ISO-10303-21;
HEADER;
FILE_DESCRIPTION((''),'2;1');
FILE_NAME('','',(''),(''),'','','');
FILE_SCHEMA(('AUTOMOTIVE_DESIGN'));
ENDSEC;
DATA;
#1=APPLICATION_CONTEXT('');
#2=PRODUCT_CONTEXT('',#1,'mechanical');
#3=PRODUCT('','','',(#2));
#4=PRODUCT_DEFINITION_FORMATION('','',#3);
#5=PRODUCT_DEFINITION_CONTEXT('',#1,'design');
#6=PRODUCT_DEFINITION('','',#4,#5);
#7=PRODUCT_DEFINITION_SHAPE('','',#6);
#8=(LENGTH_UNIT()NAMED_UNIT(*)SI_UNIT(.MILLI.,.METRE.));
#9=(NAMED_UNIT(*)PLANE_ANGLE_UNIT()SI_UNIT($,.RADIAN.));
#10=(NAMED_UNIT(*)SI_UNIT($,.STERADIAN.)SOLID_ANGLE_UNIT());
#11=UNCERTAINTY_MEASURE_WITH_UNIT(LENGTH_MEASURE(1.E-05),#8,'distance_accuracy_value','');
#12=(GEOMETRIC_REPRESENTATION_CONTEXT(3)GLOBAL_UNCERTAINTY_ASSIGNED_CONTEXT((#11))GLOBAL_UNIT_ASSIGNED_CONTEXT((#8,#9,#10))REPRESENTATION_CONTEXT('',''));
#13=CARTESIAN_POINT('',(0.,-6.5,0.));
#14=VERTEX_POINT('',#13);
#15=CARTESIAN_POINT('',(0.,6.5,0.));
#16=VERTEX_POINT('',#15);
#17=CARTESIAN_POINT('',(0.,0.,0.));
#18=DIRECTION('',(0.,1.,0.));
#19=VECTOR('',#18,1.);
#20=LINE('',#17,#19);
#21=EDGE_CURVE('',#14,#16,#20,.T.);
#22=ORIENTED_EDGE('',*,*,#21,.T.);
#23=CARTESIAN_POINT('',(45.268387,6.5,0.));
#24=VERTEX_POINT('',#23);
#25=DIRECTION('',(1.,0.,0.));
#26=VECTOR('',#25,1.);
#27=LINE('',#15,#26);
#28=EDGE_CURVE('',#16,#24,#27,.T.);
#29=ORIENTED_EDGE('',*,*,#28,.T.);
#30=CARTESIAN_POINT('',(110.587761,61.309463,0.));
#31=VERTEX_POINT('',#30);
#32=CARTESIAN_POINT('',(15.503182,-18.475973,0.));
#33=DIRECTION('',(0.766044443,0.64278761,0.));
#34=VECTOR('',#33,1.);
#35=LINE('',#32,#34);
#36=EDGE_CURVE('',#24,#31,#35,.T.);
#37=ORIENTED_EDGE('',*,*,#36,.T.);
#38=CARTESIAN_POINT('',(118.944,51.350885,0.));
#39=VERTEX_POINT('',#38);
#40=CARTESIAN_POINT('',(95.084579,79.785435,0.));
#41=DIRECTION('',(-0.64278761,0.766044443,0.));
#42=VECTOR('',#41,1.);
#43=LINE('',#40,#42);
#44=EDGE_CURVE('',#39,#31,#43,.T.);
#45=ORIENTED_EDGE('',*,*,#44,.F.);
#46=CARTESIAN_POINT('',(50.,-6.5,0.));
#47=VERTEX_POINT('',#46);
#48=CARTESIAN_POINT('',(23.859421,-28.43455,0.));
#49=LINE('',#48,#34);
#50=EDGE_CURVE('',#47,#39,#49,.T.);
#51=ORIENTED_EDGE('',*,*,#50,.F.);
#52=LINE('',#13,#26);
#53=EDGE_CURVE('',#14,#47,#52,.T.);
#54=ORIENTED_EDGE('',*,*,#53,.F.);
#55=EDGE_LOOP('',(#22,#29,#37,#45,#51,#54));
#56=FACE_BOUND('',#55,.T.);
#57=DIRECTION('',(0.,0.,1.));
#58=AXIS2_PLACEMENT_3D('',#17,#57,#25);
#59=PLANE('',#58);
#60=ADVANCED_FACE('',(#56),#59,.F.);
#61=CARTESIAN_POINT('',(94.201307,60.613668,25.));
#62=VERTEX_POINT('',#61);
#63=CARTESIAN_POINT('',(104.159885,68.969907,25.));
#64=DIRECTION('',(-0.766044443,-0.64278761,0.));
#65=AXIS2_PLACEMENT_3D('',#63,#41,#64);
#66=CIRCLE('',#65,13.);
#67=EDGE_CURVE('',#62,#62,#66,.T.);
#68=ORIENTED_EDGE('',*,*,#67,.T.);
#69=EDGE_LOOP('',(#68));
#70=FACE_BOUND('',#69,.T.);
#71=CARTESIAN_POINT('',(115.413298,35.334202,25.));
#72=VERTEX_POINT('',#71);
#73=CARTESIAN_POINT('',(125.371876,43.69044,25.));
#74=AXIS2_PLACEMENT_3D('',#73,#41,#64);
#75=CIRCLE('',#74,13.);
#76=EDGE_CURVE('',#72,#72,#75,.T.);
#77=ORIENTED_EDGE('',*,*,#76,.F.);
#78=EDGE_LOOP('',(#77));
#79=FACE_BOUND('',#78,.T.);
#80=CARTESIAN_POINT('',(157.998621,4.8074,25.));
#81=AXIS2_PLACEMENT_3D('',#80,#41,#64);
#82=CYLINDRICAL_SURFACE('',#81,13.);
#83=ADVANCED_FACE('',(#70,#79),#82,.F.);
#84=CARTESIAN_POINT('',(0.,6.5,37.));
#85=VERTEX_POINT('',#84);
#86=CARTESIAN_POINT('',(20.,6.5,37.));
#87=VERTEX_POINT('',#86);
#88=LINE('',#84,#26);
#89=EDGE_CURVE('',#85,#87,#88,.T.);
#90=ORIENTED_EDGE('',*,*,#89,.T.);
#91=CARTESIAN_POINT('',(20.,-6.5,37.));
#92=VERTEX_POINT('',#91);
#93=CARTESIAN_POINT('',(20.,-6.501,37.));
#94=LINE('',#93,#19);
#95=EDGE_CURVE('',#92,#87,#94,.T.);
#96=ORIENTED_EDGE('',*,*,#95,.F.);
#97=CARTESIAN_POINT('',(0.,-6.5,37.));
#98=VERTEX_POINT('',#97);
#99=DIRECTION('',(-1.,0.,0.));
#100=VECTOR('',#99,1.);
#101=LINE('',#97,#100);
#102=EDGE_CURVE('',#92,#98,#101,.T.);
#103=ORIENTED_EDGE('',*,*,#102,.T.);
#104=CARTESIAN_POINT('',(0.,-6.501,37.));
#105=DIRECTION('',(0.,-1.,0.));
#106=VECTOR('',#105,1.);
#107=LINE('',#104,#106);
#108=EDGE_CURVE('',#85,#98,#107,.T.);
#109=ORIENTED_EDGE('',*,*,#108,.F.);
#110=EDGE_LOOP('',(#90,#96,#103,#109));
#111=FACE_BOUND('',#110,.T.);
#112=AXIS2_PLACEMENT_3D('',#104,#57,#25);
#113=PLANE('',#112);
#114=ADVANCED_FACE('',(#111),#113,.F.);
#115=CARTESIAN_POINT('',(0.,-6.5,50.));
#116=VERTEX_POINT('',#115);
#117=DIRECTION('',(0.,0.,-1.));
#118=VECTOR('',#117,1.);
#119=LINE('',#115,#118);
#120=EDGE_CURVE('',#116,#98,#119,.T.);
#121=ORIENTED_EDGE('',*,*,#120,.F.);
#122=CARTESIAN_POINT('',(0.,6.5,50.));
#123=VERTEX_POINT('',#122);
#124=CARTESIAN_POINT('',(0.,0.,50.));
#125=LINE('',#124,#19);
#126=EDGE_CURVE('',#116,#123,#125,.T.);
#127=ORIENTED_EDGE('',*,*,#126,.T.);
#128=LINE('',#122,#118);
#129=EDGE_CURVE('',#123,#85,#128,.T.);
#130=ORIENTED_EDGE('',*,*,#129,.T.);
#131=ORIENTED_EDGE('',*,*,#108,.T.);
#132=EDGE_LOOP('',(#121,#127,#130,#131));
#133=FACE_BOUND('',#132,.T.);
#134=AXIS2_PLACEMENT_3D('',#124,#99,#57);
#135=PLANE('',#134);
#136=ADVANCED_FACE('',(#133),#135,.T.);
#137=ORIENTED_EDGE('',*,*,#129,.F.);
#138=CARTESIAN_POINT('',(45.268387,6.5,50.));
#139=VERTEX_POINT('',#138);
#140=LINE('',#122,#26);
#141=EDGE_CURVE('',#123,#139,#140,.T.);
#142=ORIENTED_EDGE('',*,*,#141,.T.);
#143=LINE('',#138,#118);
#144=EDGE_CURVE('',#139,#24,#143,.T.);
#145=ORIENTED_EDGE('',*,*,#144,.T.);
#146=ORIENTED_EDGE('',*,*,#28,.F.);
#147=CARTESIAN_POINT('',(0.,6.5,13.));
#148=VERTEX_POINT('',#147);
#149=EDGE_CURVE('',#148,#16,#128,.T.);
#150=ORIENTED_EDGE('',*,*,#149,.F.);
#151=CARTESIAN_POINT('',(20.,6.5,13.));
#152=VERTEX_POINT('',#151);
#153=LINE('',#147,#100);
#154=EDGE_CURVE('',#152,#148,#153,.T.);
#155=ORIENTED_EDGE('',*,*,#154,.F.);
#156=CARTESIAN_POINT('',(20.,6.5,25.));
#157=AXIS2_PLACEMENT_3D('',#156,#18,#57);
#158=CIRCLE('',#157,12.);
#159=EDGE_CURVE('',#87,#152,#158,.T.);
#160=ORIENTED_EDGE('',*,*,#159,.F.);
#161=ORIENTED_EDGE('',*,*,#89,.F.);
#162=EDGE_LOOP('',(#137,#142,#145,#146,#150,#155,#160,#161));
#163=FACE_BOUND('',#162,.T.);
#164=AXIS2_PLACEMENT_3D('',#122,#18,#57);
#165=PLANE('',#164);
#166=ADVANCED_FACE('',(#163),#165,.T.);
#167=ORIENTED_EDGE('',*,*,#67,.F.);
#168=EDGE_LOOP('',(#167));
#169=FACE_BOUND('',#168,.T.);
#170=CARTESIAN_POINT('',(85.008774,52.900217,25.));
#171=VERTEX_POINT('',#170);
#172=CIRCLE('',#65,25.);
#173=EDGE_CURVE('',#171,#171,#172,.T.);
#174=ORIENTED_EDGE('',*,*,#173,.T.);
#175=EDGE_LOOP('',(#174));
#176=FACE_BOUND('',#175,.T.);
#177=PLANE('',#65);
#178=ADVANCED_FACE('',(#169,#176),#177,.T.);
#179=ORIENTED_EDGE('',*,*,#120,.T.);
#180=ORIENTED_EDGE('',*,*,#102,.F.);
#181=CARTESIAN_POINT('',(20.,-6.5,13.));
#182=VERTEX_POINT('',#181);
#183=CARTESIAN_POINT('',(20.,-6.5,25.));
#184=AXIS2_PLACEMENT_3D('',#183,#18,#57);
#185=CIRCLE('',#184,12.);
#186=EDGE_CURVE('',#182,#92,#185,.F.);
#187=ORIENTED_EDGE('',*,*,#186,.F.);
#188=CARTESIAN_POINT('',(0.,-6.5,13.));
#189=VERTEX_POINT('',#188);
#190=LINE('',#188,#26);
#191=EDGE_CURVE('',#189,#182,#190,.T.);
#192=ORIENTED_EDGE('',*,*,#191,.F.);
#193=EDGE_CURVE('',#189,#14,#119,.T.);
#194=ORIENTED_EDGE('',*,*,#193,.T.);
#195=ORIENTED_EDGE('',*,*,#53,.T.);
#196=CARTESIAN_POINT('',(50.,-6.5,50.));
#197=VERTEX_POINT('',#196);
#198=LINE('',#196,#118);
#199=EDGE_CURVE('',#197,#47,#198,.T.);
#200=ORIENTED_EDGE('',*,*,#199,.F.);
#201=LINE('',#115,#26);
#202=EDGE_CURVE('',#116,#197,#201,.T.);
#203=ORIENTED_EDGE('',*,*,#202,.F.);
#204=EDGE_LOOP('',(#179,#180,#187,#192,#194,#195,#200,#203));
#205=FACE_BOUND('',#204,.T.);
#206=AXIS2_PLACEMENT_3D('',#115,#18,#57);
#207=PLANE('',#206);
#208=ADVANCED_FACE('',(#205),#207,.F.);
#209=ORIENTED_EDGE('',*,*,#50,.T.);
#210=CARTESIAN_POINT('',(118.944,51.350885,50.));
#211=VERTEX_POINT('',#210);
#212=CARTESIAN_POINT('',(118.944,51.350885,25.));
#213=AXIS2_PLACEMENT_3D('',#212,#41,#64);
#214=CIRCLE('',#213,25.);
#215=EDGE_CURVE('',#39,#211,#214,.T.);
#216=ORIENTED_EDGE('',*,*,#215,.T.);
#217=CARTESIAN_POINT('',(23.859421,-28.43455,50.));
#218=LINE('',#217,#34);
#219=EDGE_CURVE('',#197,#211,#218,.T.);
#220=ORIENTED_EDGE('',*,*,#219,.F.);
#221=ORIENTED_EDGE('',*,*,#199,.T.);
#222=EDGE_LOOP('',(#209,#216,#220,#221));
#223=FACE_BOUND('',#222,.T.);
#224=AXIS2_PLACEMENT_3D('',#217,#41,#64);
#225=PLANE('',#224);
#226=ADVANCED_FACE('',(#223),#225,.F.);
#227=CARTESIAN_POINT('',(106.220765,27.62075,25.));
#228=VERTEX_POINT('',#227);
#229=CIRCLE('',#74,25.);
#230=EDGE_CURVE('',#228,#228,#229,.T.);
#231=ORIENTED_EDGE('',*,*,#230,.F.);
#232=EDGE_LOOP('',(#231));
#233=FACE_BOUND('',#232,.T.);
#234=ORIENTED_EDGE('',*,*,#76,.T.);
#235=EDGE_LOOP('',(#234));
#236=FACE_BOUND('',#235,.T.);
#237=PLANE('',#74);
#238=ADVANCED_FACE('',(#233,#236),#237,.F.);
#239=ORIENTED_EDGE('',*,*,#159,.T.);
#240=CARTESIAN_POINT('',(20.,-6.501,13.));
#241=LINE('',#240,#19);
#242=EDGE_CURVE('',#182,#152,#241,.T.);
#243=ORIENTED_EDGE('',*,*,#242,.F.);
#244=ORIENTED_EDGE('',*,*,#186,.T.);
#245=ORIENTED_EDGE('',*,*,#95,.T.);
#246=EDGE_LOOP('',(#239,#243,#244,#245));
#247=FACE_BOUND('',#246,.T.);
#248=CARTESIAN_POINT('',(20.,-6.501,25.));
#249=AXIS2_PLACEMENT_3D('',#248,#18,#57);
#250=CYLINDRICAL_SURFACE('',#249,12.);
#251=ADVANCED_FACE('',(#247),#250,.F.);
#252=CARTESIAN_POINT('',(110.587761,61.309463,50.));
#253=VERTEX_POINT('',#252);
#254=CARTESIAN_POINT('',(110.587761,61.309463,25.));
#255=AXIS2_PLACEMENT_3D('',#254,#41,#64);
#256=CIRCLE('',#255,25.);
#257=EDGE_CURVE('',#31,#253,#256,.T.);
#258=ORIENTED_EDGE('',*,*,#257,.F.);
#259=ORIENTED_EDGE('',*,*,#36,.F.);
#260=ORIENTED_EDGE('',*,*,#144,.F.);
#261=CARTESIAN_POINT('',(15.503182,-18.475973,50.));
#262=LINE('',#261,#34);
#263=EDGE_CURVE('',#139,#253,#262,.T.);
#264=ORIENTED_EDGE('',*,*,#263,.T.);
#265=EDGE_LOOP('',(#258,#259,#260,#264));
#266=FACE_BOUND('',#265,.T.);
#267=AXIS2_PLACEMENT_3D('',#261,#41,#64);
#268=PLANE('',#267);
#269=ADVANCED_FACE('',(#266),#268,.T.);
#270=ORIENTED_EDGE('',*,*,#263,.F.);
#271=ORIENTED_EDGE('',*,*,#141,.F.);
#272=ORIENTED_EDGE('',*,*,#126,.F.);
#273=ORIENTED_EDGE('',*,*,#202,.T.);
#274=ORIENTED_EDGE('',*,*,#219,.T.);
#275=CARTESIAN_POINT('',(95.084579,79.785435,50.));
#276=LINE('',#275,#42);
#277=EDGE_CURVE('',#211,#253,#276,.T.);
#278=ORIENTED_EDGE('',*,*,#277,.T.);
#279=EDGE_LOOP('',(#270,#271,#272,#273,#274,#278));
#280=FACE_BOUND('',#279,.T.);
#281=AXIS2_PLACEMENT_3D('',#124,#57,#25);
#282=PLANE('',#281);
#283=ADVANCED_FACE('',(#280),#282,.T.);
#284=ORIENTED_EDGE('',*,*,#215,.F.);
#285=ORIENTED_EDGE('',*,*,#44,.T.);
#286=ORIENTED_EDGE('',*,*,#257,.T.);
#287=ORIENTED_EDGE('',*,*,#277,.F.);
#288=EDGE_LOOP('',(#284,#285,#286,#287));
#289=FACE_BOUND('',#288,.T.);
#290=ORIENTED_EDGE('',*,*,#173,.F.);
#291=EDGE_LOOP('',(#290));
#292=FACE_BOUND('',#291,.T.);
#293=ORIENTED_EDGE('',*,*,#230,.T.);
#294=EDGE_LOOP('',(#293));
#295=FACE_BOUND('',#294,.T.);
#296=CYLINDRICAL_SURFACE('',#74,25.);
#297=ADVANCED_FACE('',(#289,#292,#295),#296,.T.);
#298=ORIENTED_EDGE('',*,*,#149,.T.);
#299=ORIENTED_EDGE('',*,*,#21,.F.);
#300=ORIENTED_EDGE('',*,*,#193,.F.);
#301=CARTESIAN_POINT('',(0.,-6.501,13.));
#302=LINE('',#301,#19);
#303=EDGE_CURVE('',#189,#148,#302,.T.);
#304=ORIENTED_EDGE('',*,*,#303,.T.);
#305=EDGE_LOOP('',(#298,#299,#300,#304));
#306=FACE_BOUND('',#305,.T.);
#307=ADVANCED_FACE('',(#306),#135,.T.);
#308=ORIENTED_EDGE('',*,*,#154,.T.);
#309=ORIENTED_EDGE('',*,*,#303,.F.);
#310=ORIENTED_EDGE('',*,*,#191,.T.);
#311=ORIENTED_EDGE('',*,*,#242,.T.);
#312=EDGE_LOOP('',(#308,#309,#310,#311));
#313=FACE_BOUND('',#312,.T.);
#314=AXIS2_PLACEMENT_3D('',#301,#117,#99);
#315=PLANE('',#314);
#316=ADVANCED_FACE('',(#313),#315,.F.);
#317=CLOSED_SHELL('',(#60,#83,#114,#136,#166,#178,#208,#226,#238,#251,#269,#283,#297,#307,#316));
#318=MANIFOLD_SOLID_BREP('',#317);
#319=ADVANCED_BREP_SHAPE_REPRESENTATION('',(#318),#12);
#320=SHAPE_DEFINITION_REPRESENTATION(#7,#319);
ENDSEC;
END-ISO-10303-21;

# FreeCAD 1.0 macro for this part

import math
import FreeCAD as App
import Part
import Sketcher
Q = App.Units.Quantity

doc = App.newDocument("Part")
body = doc.addObject("PartDesign::Body", "Body")

sketch1 = body.newObject("Sketcher::SketchObject", "Sketch")
sketch1.AttachmentSupport = (doc.getObject("XY_Plane"), [""])
sketch1.MapMode = "FlatFace"
sketch1.addGeometry([
    Part.LineSegment(App.Vector(0, 6.5, 0), App.Vector(0, -6.5, 0)),
    Part.LineSegment(App.Vector(0, -6.5, 0), App.Vector(50, -6.5, 0)),
    Part.LineSegment(App.Vector(50, -6.5, 0), App.Vector(118.944, 51.350885, 0)),
    Part.LineSegment(App.Vector(118.944, 51.350885, 0), App.Vector(110.587761, 61.309463, 0)),
    Part.LineSegment(App.Vector(110.587761, 61.309463, 0), App.Vector(45.268387, 6.5, 0)),
    Part.LineSegment(App.Vector(45.268387, 6.5, 0), App.Vector(0, 6.5, 0)),
], False)
sketch1.addConstraint([
    Sketcher.Constraint("Coincident", 0, 2, 1, 1),
    Sketcher.Constraint("Coincident", 1, 2, 2, 1),
    Sketcher.Constraint("Coincident", 2, 2, 3, 1),
    Sketcher.Constraint("Coincident", 3, 2, 4, 1),
    Sketcher.Constraint("Coincident", 4, 2, 5, 1),
    Sketcher.Constraint("Coincident", 5, 2, 0, 1),
    Sketcher.Constraint("Vertical", 0),
    Sketcher.Constraint("Horizontal", 1),
    Sketcher.Constraint("Horizontal", 5),
    Sketcher.Constraint("Symmetric", 0, 2, 5, 2, -1, 1),
    Sketcher.Constraint("Perpendicular", 2, 3),
    Sketcher.Constraint("Perpendicular", 3, 4),
    Sketcher.Constraint("DistanceX", 1, 1, 1, 2, 50.0),
    Sketcher.Constraint("DistanceY", 0, 2, 0, 1, 13.0),
    Sketcher.Constraint("Angle", 2, Q("40 deg")),
    Sketcher.Constraint("Distance", 2, 90.0),
    Sketcher.Constraint("Distance", 3, 13.0),
])
pad1 = body.newObject("PartDesign::Pad", "Pad")
pad1.Profile = sketch1
pad1.Length = 50

sketch2 = body.newObject("Sketcher::SketchObject", "Sketch001")
sketch2.Placement = App.Placement(App.Vector(15.503182, -18.475973, 0), App.Rotation(App.Vector(0.766044443, 0.64278761, 0), App.Vector(0, 0, -1), App.Vector(-0.64278761, 0.766044443, 0), "ZXY"))
sketch2.addGeometry(Part.Circle(App.Vector(124.124103, -25, 0), App.Vector(0, 0, 1), 25), False)
sketch2.addConstraint([
    Sketcher.Constraint("Diameter", 0, 50.0),
    Sketcher.Constraint("DistanceY", 0, 3, -1, 1, 25.0),
    Sketcher.Constraint("DistanceX", -1, 1, 0, 3, 124.124103),
])
pad2 = body.newObject("PartDesign::Pad", "Pad001")
pad2.Profile = sketch2
pad2.Type = "TwoLengths"
pad2.Length = 10
pad2.Length2 = 23

sketch3 = body.newObject("Sketcher::SketchObject", "Sketch002")
sketch3.AttachmentSupport = (doc.getObject("XZ_Plane"), [""])
sketch3.MapMode = "FlatFace"
sketch3.AttachmentOffset = App.Placement(App.Vector(0, 0, -6.5), App.Rotation())
sketch3.addGeometry([
    Part.LineSegment(App.Vector(20, 13, 0), App.Vector(0, 13, 0)),
    Part.ArcOfCircle(Part.Circle(App.Vector(0, 25, 0), App.Vector(0, 0, 1), 12), math.radians(90), math.radians(270)),
    Part.LineSegment(App.Vector(0, 37, 0), App.Vector(20, 37, 0)),
    Part.ArcOfCircle(Part.Circle(App.Vector(20, 25, 0), App.Vector(0, 0, 1), 12), math.radians(-90), math.radians(90)),
], False)
sketch3.addConstraint([
    Sketcher.Constraint("Tangent", 0, 2, 1, 2),
    Sketcher.Constraint("Tangent", 1, 1, 2, 1),
    Sketcher.Constraint("Tangent", 2, 2, 3, 2),
    Sketcher.Constraint("Tangent", 3, 1, 0, 1),
    Sketcher.Constraint("Horizontal", 0),
    Sketcher.Constraint("Horizontal", 2),
    Sketcher.Constraint("PointOnObject", 1, 3, -2),
    Sketcher.Constraint("Radius", 1, 12.0),
    Sketcher.Constraint("DistanceX", 0, 2, 0, 1, 20.0),
    Sketcher.Constraint("DistanceY", -1, 1, 1, 3, 25.0),
])
pocket1 = body.newObject("PartDesign::Pocket", "Pocket")
pocket1.Profile = sketch3
pocket1.Type = "UpToFirst"
pocket1.Reversed = True

sketch4 = body.newObject("Sketcher::SketchObject", "Sketch003")
sketch4.Placement = App.Placement(App.Vector(9.075306, -10.815528, 0), App.Rotation(App.Vector(0.766044443, 0.64278761, 0), App.Vector(0, 0, -1), App.Vector(-0.64278761, 0.766044443, 0), "ZXY"))
sketch4.addGeometry(Part.Circle(App.Vector(124.124103, -25, 0), App.Vector(0, 0, 1), 13), False)
sketch4.addConstraint([
    Sketcher.Constraint("Diameter", 0, 26.0),
    Sketcher.Constraint("DistanceY", 0, 3, -1, 1, 25.0),
    Sketcher.Constraint("DistanceX", -1, 1, 0, 3, 124.124103),
])
pocket2 = body.newObject("PartDesign::Pocket", "Pocket001")
pocket2.Profile = sketch4
pocket2.Type = "ThroughAll"

doc.recompute()
